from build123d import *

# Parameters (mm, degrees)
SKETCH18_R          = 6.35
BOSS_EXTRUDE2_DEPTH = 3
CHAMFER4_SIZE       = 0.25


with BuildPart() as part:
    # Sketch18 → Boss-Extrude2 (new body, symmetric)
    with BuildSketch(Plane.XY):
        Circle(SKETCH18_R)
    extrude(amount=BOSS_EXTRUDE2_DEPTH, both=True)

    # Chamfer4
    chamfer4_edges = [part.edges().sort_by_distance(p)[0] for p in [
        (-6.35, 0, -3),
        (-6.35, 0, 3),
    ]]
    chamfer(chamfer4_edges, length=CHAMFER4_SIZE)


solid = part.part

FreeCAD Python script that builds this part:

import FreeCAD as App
import Part
import Sketcher
Q = App.Units.Quantity


def edges_at(feature, points):
    """Names of the edges that pass closest to the given points."""
    edges = feature.Shape.Edges
    near = lambda p: min(range(len(edges)), key=lambda i: edges[i].distToShape(Part.Vertex(*p))[0])
    return sorted({f"Edge{near(p) + 1}" for p in points})

doc = App.newDocument("Part")
body = doc.addObject("PartDesign::Body", "Body")

# Sketch on XY plane
sketch1 = body.newObject("Sketcher::SketchObject", "Sketch")
sketch1.AttachmentSupport = (doc.getObject("XY_Plane"), [""])
sketch1.MapMode = "FlatFace"
sketch1.addGeometry(Part.Circle(App.Vector(0, 0, 0), App.Vector(0, 0, 1), 6), False)
sketch1.addConstraint([
    Sketcher.Constraint("Coincident", 0, 3, -1, 1),
    Sketcher.Constraint("Diameter", 0, Q("12.7 mm")),
])
pad1 = body.newObject("PartDesign::Pad", "Pad")
pad1.Profile = sketch1
pad1.Length = 6
pad1.Midplane = True
doc.recompute()

chamfer = body.newObject("PartDesign::Chamfer", "Chamfer")
chamfer.Base = (pad1, edges_at(pad1, [(-6.35, 0, -3), (-6.35, 0, 3)]))
chamfer.Size = 0.25

doc.recompute()
